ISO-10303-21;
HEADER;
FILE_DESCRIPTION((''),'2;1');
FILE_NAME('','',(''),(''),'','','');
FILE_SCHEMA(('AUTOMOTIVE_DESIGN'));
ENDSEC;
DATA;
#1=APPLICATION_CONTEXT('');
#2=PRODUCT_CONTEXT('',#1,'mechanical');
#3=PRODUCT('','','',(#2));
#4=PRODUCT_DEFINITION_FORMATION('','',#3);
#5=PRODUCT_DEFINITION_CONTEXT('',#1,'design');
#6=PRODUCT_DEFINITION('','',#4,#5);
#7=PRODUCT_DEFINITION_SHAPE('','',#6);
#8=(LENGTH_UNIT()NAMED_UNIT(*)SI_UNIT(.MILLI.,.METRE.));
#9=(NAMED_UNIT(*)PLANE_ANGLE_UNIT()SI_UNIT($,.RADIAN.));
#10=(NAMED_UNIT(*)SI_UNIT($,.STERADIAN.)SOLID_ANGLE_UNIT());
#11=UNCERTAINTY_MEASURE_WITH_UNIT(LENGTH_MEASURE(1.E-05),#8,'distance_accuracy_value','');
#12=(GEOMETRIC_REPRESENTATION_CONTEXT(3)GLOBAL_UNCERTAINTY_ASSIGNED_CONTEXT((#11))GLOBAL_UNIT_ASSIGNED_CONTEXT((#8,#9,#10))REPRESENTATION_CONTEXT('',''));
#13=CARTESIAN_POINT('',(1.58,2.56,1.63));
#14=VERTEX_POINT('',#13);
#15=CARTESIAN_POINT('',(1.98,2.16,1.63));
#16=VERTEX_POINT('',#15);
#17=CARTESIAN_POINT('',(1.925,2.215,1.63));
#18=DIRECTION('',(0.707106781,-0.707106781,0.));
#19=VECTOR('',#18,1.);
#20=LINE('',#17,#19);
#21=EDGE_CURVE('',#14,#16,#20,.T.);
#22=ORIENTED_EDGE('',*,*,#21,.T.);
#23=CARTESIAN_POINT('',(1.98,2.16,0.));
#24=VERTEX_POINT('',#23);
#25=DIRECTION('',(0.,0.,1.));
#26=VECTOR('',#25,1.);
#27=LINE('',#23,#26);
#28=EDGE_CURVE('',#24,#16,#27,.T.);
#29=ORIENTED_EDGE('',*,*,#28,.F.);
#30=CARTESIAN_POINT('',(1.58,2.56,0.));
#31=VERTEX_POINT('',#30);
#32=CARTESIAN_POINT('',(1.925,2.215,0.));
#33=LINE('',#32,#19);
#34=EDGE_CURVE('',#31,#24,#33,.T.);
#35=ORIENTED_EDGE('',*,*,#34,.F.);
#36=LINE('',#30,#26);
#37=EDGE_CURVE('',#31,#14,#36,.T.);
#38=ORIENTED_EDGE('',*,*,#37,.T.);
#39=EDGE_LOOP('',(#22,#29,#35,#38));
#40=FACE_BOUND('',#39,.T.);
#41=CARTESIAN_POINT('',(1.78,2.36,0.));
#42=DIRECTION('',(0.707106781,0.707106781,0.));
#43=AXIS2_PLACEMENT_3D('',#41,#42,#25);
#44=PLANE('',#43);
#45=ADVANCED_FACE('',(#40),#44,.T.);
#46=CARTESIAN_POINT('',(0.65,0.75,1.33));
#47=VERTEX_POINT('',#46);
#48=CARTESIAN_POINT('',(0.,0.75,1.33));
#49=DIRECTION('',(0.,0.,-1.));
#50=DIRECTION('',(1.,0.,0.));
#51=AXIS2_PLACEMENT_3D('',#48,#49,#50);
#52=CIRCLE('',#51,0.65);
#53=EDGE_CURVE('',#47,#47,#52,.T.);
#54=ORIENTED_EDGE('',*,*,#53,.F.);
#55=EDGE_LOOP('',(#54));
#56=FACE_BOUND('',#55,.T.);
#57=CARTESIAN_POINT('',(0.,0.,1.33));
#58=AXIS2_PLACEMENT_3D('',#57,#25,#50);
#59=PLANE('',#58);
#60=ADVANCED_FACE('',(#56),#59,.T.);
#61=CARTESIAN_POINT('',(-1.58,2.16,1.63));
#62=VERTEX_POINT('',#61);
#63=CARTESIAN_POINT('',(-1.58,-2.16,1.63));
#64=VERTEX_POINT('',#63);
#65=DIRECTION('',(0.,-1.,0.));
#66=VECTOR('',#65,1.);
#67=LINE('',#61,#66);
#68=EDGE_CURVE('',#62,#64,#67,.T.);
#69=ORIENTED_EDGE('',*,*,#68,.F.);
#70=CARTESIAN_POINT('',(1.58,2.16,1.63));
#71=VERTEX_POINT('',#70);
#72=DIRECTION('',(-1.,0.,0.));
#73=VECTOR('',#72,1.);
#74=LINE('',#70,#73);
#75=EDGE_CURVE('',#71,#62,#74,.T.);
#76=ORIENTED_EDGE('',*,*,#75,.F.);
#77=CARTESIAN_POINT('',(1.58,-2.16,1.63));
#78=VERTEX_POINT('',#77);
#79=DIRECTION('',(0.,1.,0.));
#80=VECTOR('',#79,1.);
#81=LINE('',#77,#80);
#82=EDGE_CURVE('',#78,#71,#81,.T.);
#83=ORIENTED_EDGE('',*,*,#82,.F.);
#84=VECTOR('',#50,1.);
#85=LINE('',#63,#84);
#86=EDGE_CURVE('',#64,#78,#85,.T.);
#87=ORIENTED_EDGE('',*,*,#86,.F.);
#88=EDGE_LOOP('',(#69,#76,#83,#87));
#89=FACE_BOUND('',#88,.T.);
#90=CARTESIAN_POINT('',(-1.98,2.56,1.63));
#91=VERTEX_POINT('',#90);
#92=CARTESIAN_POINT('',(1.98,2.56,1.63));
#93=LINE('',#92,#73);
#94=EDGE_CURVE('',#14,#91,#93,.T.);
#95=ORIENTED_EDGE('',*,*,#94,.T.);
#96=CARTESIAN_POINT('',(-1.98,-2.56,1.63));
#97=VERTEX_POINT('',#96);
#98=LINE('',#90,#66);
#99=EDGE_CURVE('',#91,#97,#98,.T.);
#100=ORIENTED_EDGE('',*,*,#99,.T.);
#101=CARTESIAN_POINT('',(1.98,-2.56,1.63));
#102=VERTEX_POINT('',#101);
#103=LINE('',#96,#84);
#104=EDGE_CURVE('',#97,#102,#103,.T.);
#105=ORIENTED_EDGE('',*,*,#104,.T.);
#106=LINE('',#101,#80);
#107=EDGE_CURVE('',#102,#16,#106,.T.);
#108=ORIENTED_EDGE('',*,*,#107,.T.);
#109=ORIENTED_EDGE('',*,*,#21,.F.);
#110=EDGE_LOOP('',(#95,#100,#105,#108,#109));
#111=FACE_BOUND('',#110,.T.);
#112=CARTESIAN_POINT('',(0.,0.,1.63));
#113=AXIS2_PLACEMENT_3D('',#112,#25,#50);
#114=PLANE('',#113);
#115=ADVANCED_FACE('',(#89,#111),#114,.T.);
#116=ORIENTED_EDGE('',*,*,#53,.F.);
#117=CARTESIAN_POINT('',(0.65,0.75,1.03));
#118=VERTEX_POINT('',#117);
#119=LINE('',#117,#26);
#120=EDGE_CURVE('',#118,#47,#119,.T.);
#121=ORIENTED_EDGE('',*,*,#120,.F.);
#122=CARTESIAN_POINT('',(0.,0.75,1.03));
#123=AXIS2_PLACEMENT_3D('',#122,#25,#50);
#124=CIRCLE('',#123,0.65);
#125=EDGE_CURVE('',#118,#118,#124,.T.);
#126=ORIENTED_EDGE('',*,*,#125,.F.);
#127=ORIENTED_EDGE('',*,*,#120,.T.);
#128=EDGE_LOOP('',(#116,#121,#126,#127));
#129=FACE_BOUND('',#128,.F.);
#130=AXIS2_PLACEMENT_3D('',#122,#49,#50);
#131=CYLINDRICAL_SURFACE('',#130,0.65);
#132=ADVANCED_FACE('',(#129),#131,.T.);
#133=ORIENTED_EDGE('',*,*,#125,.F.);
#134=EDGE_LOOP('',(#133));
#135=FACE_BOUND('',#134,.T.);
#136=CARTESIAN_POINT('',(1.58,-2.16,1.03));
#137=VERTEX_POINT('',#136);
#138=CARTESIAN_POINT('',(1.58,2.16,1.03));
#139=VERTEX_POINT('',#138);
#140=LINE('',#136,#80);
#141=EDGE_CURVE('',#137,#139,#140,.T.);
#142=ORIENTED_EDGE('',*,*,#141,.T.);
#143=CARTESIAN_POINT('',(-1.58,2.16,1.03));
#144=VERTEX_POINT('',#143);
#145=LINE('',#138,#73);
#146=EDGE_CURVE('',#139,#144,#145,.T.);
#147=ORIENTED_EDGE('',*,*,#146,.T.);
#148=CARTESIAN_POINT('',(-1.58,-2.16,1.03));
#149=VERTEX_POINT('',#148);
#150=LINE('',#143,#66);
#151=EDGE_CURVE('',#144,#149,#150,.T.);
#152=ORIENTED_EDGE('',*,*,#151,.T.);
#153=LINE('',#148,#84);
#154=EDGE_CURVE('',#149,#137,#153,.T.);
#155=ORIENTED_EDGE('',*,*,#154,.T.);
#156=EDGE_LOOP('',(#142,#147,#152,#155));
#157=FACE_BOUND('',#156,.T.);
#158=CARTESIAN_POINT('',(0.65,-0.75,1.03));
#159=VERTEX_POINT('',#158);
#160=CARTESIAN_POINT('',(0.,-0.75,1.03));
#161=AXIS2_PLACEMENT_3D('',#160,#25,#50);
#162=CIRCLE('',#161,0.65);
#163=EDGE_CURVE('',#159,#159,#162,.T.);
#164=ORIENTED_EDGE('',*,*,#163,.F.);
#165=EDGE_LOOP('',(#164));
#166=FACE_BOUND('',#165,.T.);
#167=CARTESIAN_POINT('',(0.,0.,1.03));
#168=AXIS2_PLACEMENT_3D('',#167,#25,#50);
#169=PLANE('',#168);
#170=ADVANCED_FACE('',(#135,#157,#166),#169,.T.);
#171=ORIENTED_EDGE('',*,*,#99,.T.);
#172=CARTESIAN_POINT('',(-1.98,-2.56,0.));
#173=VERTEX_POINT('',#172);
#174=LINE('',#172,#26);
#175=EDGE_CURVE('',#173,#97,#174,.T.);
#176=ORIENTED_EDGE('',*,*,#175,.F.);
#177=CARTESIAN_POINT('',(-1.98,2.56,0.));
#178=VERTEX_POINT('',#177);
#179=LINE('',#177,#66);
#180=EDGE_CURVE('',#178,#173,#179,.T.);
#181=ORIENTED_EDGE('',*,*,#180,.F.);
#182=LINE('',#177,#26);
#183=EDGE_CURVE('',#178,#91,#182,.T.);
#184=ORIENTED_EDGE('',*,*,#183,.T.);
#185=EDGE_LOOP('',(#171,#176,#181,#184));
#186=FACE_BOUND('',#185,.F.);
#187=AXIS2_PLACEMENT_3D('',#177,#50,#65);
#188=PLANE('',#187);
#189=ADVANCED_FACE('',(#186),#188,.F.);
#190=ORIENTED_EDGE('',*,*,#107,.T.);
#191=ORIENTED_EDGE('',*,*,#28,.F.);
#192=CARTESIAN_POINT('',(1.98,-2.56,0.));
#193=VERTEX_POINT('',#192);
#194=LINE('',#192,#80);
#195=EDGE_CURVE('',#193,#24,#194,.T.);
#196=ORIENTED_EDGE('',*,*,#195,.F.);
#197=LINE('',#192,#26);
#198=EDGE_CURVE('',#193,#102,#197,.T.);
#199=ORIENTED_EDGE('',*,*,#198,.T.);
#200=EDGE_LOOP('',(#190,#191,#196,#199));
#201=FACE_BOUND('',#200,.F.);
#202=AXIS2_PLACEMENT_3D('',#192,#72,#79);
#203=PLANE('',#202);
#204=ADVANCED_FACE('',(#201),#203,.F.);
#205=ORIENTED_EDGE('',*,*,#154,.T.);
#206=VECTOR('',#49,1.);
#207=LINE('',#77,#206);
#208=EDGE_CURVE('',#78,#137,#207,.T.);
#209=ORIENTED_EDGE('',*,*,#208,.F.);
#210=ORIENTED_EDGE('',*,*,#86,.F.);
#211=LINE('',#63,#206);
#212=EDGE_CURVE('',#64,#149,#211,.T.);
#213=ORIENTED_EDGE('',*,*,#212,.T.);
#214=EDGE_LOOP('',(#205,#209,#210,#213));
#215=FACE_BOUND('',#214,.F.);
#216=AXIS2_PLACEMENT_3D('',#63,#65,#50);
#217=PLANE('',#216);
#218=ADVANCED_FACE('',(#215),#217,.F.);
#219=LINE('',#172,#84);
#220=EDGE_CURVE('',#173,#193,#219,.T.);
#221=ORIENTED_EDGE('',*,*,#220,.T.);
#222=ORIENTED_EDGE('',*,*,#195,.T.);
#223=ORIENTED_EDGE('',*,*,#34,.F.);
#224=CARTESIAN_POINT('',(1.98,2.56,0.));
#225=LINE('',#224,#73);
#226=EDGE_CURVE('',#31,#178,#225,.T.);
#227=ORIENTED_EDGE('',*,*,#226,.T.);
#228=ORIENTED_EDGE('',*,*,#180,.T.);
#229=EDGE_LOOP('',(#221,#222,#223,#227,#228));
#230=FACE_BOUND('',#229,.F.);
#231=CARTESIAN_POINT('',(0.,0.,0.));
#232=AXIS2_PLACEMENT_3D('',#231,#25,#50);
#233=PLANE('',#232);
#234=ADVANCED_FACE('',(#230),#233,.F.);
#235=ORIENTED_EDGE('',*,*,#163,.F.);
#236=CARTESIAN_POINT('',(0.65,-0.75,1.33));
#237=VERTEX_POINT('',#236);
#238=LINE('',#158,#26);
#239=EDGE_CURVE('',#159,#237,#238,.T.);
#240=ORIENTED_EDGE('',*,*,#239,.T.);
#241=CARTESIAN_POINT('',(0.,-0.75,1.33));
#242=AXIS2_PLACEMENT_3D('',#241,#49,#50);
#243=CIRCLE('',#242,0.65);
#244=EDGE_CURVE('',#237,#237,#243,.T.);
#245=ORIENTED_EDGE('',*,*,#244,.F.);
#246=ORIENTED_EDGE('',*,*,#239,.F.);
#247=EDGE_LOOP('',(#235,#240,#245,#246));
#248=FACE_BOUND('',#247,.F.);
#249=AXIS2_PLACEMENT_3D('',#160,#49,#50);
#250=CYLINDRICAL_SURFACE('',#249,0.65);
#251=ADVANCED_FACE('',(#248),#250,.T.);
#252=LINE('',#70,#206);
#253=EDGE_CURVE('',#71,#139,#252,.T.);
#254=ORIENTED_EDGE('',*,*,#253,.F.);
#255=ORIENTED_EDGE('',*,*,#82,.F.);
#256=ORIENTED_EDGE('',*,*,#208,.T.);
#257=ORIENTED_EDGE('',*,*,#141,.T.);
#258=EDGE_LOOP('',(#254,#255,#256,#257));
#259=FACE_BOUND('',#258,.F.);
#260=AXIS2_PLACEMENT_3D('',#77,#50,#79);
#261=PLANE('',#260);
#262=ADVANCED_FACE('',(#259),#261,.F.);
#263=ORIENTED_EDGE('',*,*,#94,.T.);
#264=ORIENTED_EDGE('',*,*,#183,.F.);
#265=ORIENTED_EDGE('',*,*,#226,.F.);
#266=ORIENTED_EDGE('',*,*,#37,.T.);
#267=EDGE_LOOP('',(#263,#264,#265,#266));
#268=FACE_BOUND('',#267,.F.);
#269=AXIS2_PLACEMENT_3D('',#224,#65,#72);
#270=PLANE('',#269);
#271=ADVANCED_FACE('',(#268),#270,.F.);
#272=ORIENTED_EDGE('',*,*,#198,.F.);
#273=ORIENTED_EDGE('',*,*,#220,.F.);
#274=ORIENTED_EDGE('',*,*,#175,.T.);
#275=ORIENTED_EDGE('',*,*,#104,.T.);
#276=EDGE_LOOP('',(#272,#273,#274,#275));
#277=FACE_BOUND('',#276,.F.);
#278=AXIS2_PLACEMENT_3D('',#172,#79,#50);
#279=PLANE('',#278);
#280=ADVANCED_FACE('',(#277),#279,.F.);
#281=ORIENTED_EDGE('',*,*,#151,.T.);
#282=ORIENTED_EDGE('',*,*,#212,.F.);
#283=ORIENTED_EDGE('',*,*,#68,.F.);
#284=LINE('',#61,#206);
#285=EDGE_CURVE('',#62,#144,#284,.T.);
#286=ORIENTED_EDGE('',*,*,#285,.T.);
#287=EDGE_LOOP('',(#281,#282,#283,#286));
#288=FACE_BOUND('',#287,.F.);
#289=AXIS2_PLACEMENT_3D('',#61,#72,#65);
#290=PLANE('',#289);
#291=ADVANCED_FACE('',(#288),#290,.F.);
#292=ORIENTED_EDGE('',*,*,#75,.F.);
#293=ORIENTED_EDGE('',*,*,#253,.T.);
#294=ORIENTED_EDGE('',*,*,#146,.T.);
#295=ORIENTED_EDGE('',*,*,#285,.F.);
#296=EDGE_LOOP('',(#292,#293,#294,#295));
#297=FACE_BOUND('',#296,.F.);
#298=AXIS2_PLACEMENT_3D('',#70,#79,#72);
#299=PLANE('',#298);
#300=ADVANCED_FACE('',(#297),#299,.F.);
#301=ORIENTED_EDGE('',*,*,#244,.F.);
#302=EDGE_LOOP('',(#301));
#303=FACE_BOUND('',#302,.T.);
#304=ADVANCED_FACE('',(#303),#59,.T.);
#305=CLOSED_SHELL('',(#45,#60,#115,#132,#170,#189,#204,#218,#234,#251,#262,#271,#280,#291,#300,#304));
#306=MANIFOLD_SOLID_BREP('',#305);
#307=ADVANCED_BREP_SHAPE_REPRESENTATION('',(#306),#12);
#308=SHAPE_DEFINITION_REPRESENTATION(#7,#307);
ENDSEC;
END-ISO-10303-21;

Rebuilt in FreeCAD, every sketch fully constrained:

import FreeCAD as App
import Part
import Sketcher
Q = App.Units.Quantity


def edges_at(feature, points):
    """Names of the edges that pass closest to the given points."""
    edges = feature.Shape.Edges
    near = lambda p: min(range(len(edges)), key=lambda i: edges[i].distToShape(Part.Vertex(*p))[0])
    return sorted({f"Edge{near(p) + 1}" for p in points})

doc = App.newDocument("Part")
params = doc.addObject("Spreadsheet::Sheet", "Params")
for row, (alias, value) in enumerate([
    ("sketch1_width", "3.96 mm"),
    ("sketch1_height", "5.12 mm"),
    ("pad1_length", "1.63 mm"),
    ("sketch2_width", "3.16 mm"),
    ("sketch2_height", "4.32 mm"),
    ("pocket1_length", "0.6 mm"),
    ("sketch3_diameter", "1.3 mm"),
    ("pad2_length", "0.3 mm"),
    ("chamfer_size", "0.4 mm"),
], start=1):
    params.set(f"A{row}", alias)
    params.set(f"B{row}", "=" + value)
    params.setAlias(f"B{row}", alias)

body = doc.addObject("PartDesign::Body", "Body")

sketch1 = body.newObject("Sketcher::SketchObject", "Sketch")
sketch1.AttachmentSupport = (doc.getObject("XY_Plane"), [""])
sketch1.MapMode = "FlatFace"
sketch1.addGeometry(Part.LineSegment(App.Vector(-2, 2.6, 0), App.Vector(-2, -2.6, 0)), False)
sketch1.addGeometry(Part.LineSegment(App.Vector(-2, -2.6, 0), App.Vector(2, -2.6, 0)), False)
sketch1.addGeometry(Part.LineSegment(App.Vector(2, -2.6, 0), App.Vector(2, 2.6, 0)), False)
sketch1.addGeometry(Part.LineSegment(App.Vector(2, 2.6, 0), App.Vector(-2, 2.6, 0)), False)
sketch1.addConstraint(Sketcher.Constraint("Coincident", 0, 2, 1, 1))
sketch1.addConstraint(Sketcher.Constraint("Coincident", 1, 2, 2, 1))
sketch1.addConstraint(Sketcher.Constraint("Coincident", 2, 2, 3, 1))
sketch1.addConstraint(Sketcher.Constraint("Coincident", 3, 2, 0, 1))
sketch1.addConstraint(Sketcher.Constraint("Vertical", 0))
sketch1.addConstraint(Sketcher.Constraint("Horizontal", 1))
sketch1.addConstraint(Sketcher.Constraint("Vertical", 2))
sketch1.addConstraint(Sketcher.Constraint("Horizontal", 3))
sketch1.addConstraint(Sketcher.Constraint("Symmetric", 0, 2, 2, 2, -1, 1))
sketch1.addConstraint(Sketcher.Constraint("DistanceX", 1, 1, 1, 2, Q("3.96 mm")))
sketch1.addConstraint(Sketcher.Constraint("DistanceY", 0, 2, 0, 1, Q("5.12 mm")))
sketch1.setExpression("Constraints[9]", "Params.sketch1_width")
sketch1.setExpression("Constraints[10]", "Params.sketch1_height")
pad1 = body.newObject("PartDesign::Pad", "Pad")
pad1.Profile = sketch1
pad1.setExpression("Length", "Params.pad1_length")

sketch2 = body.newObject("Sketcher::SketchObject", "Sketch001")
sketch2.AttachmentSupport = (doc.getObject("XY_Plane"), [""])
sketch2.MapMode = "FlatFace"
sketch2.AttachmentOffset = App.Placement(App.Vector(0, 0, 1.63), App.Rotation())
sketch2.addGeometry(Part.LineSegment(App.Vector(-1.6, 2.2, 0), App.Vector(-1.6, -2.2, 0)), False)
sketch2.addGeometry(Part.LineSegment(App.Vector(-1.6, -2.2, 0), App.Vector(1.6, -2.2, 0)), False)
sketch2.addGeometry(Part.LineSegment(App.Vector(1.6, -2.2, 0), App.Vector(1.6, 2.2, 0)), False)
sketch2.addGeometry(Part.LineSegment(App.Vector(1.6, 2.2, 0), App.Vector(-1.6, 2.2, 0)), False)
sketch2.addConstraint(Sketcher.Constraint("Coincident", 0, 2, 1, 1))
sketch2.addConstraint(Sketcher.Constraint("Coincident", 1, 2, 2, 1))
sketch2.addConstraint(Sketcher.Constraint("Coincident", 2, 2, 3, 1))
sketch2.addConstraint(Sketcher.Constraint("Coincident", 3, 2, 0, 1))
sketch2.addConstraint(Sketcher.Constraint("Vertical", 0))
sketch2.addConstraint(Sketcher.Constraint("Horizontal", 1))
sketch2.addConstraint(Sketcher.Constraint("Vertical", 2))
sketch2.addConstraint(Sketcher.Constraint("Horizontal", 3))
sketch2.addConstraint(Sketcher.Constraint("Symmetric", 0, 2, 2, 2, -1, 1))
sketch2.addConstraint(Sketcher.Constraint("DistanceX", 1, 1, 1, 2, Q("3.16 mm")))
sketch2.addConstraint(Sketcher.Constraint("DistanceY", 0, 2, 0, 1, Q("4.32 mm")))
sketch2.setExpression("Constraints[9]", "Params.sketch2_width")
sketch2.setExpression("Constraints[10]", "Params.sketch2_height")
pocket1 = body.newObject("PartDesign::Pocket", "Pocket")
pocket1.Profile = sketch2
pocket1.setExpression("Length", "Params.pocket1_length")

sketch3 = body.newObject("Sketcher::SketchObject", "Sketch002")
sketch3.AttachmentSupport = (doc.getObject("XY_Plane"), [""])
sketch3.MapMode = "FlatFace"
sketch3.AttachmentOffset = App.Placement(App.Vector(0, 0, 1.03), App.Rotation())
sketch3.addGeometry(Part.Circle(App.Vector(0, 0.8, 0), App.Vector(0, 0, 1), 0.7), False)
sketch3.addGeometry(Part.Circle(App.Vector(0, -0.8, 0), App.Vector(0, 0, 1), 0.7), False)
sketch3.addConstraint(Sketcher.Constraint("Equal", 0, 1))
sketch3.addConstraint(Sketcher.Constraint("Symmetric", 0, 3, 1, 3, -1, 1))
sketch3.addConstraint(Sketcher.Constraint("PointOnObject", 0, 3, -2))
sketch3.addConstraint(Sketcher.Constraint("Diameter", 0, Q("1.3 mm")))
sketch3.addConstraint(Sketcher.Constraint("DistanceY", 1, 3, 0, 3, Q("1.5 mm")))
sketch3.setExpression("Constraints[3]", "Params.sketch3_diameter")
pad2 = body.newObject("PartDesign::Pad", "Pad001")
pad2.Profile = sketch3
pad2.setExpression("Length", "Params.pad2_length")
doc.recompute()

chamfer = body.newObject("PartDesign::Chamfer", "Chamfer")
chamfer.Base = (pad2, edges_at(pad2, [(1.98, 2.56, 0.815)]))
chamfer.setExpression("Size", "Params.chamfer_size")

doc.recompute()
